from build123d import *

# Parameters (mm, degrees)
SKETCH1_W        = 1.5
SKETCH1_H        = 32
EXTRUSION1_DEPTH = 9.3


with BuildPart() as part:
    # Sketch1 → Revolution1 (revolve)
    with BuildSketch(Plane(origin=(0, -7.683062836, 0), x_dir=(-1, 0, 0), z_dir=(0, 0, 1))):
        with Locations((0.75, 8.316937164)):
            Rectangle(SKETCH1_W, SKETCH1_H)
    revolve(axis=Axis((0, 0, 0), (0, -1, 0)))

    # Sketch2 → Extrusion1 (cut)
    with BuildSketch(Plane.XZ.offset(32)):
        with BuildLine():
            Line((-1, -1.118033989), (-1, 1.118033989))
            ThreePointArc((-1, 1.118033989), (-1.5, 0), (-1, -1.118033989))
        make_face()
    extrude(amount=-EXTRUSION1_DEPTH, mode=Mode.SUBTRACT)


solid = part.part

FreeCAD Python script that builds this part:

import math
import FreeCAD as App
import Part
import Sketcher
Q = App.Units.Quantity

doc = App.newDocument("Part")
body = doc.addObject("PartDesign::Body", "Body")

# Sketch on XY plane
sketch1 = doc.addObject("Sketcher::SketchObject", "Sketch")
body.addObject(sketch1)
sketch1.AttachmentSupport = (doc.XY_Plane, [""])
sketch1.MapMode = "FlatFace"
sketch1.addGeometry([
    Part.LineSegment(App.Vector(0, -32, 0), App.Vector(0, 0, 0)),
    Part.LineSegment(App.Vector(0, 0, 0), App.Vector(-1.5, 0, 0)),
    Part.LineSegment(App.Vector(-1.5, 0, 0), App.Vector(-1.5, -32, 0)),
    Part.LineSegment(App.Vector(-1.5, -32, 0), App.Vector(0, -32, 0)),
], False)
sketch1.addConstraint([
    Sketcher.Constraint("Coincident", 0, 2, 1, 1),
    Sketcher.Constraint("Coincident", 1, 2, 2, 1),
    Sketcher.Constraint("Coincident", 2, 2, 3, 1),
    Sketcher.Constraint("Coincident", 3, 2, 0, 1),
    Sketcher.Constraint("Vertical", 0),
    Sketcher.Constraint("Horizontal", 1),
    Sketcher.Constraint("Vertical", 2),
    Sketcher.Constraint("Horizontal", 3),
    Sketcher.Constraint("Coincident", 0, 2, -1, 1),
    Sketcher.Constraint("DistanceY", 0, 1, 0, 2, Q("32 mm")),
    Sketcher.Constraint("DistanceX", 1, 2, 1, 1, Q("1.5 mm")),
])
revolution = doc.addObject("PartDesign::Revolution", "Revolution")
body.addObject(revolution)
revolution.Profile = sketch1
revolution.ReferenceAxis = (sketch1, ["V_Axis"])
revolution.Angle = 360

# Sketch on XZ plane
sketch2 = doc.addObject("Sketcher::SketchObject", "Sketch001")
body.addObject(sketch2)
sketch2.AttachmentSupport = (doc.XZ_Plane, [""])
sketch2.MapMode = "FlatFace"
sketch2.AttachmentOffset = App.Placement(App.Vector(0, 0, 32), App.Rotation())
sketch2.addGeometry([
    Part.LineSegment(App.Vector(-1, -1.118034, 0), App.Vector(-1, 1.118034, 0)),
    Part.ArcOfCircle(Part.Circle(App.Vector(0, 0, 0), App.Vector(0, 0, 1), 1.5), math.radians(131.810315), math.radians(228.189685)),
], False)
sketch2.addConstraint([
    Sketcher.Constraint("Coincident", 0, 1, 1, 2),
    Sketcher.Constraint("Coincident", 1, 1, 0, 2),
    Sketcher.Constraint("Vertical", 0),
    Sketcher.Constraint("Coincident", 1, 3, -1, 1),
    Sketcher.Constraint("Radius", 1, Q("1.5 mm")),
    Sketcher.Constraint("DistanceX", 0, 1, -1, 1, Q("1 mm")),
])
pocket1 = doc.addObject("PartDesign::Pocket", "Pocket")
body.addObject(pocket1)
pocket1.Profile = sketch2
pocket1.Length = 9.3

doc.recompute()
